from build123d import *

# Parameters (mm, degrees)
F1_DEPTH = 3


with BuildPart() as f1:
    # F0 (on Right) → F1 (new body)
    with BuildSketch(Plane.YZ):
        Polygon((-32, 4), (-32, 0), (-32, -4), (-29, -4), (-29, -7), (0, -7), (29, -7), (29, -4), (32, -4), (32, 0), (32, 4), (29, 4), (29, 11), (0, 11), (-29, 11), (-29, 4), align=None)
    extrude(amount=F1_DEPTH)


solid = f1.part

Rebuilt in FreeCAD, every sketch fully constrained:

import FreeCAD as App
import Part
import Sketcher

V = App.Vector


def add_polygon(sketch, points):
    """Adds a closed chain of lines whose ends are joined by coincident constraints."""
    first, n = sketch.GeometryCount, len(points)
    for a, b in zip(points, points[1:] + points[:1]):
        sketch.addGeometry(Part.LineSegment(App.Vector(*a, 0), App.Vector(*b, 0)), False)
    for i in range(n):
        sketch.addConstraint(Sketcher.Constraint("Coincident", first + i, 2, first + (i + 1) % n, 1))

doc = App.newDocument("Part")
body = doc.addObject("PartDesign::Body", "Body")

sketch1 = body.newObject("Sketcher::SketchObject", "Sketch")
sketch1.AttachmentSupport = (doc.getObject("YZ_Plane"), [""])
sketch1.MapMode = "FlatFace"
add_polygon(sketch1, [(-32, 4), (-32, -4), (-29, -4), (-29, -7), (29, -7), (29, -4), (32, -4), (32, 4), (29, 4), (29, 11), (-29, 11), (-29, 4)])
sketch1.addConstraint([
    Sketcher.Constraint("Vertical", 0),
    Sketcher.Constraint("Horizontal", 1),
    Sketcher.Constraint("Vertical", 2),
    Sketcher.Constraint("Horizontal", 3),
    Sketcher.Constraint("Vertical", 4),
    Sketcher.Constraint("Horizontal", 5),
    Sketcher.Constraint("Vertical", 6),
    Sketcher.Constraint("Horizontal", 7),
    Sketcher.Constraint("Vertical", 8),
    Sketcher.Constraint("Horizontal", 9),
    Sketcher.Constraint("Vertical", 10),
    Sketcher.Constraint("Horizontal", 11),
    Sketcher.Constraint("Symmetric", 0, 2, 6, 2, -1, 1),
    Sketcher.Constraint("Symmetric", 4, 2, 10, 2, -1, 1),
    Sketcher.Constraint("Symmetric", 1, 2, 4, 2, -2),
    Sketcher.Constraint("Vertical", 4, 2, 7, 2),
    Sketcher.Constraint("Equal", 11, 2),
    Sketcher.Constraint("DistanceX", 1, 1, 1, 2, 3.0),
    Sketcher.Constraint("DistanceX", 3, 1, 3, 2, 58.0),
    Sketcher.Constraint("DistanceY", 0, 2, 0, 1, 8.0),
    Sketcher.Constraint("DistanceY", 8, 1, 8, 2, 7.0),
])
pad1 = body.newObject("PartDesign::Pad", "Pad")
pad1.Profile = sketch1
pad1.Length = 3

doc.recompute()
